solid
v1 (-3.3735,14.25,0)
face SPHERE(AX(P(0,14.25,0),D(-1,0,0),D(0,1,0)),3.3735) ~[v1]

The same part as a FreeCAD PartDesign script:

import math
import FreeCAD as App
import Part
import Sketcher
from FreeCAD import Vector
Q = App.Units.Quantity

doc = App.newDocument("Part")
body = doc.addObject("PartDesign::Body", "Body")

sketch1 = doc.addObject("Sketcher::SketchObject", "Sketch")
body.addObject(sketch1)
sketch1.AttachmentSupport = (doc.XY_Plane, [""])
sketch1.MapMode = "FlatFace"
sketch1.addGeometry(Part.LineSegment(Vector(-3.4, 14.2, 0), Vector(3.4, 14.2, 0)), False)
sketch1.addGeometry(Part.ArcOfCircle(Part.Circle(Vector(0, 14.2, 0), Vector(0, 0, 1), 3.4), math.radians(0), math.radians(180)), False)
sketch1.addGeometry(Part.LineSegment(Vector(-3.4, 14.2, 0), Vector(3.4, 14.2, 0)), True)
sketch1.addConstraint(Sketcher.Constraint("Coincident", 0, 1, 1, 2))
sketch1.addConstraint(Sketcher.Constraint("Coincident", 1, 1, 0, 2))
sketch1.addConstraint(Sketcher.Constraint("Horizontal", 0))
sketch1.addConstraint(Sketcher.Constraint("Horizontal", 2))
sketch1.addConstraint(Sketcher.Constraint("Coincident", 2, 1, 0, 1))
sketch1.addConstraint(Sketcher.Constraint("PointOnObject", 1, 3, -2))
sketch1.addConstraint(Sketcher.Constraint("Horizontal", 1, 3, 0, 1))
sketch1.addConstraint(Sketcher.Constraint("Equal", 0, 2))
sketch1.addConstraint(Sketcher.Constraint("DistanceX", 0, 1, 0, 2, Q("0.2656299 in")))
sketch1.addConstraint(Sketcher.Constraint("DistanceY", -1, 1, 1, 3, Q("14.25 mm")))
revolution = doc.addObject("PartDesign::Revolution", "Revolution")
body.addObject(revolution)
revolution.Profile = sketch1
revolution.ReferenceAxis = (sketch1, ["Axis0"])
revolution.Angle = 360

doc.recompute()
